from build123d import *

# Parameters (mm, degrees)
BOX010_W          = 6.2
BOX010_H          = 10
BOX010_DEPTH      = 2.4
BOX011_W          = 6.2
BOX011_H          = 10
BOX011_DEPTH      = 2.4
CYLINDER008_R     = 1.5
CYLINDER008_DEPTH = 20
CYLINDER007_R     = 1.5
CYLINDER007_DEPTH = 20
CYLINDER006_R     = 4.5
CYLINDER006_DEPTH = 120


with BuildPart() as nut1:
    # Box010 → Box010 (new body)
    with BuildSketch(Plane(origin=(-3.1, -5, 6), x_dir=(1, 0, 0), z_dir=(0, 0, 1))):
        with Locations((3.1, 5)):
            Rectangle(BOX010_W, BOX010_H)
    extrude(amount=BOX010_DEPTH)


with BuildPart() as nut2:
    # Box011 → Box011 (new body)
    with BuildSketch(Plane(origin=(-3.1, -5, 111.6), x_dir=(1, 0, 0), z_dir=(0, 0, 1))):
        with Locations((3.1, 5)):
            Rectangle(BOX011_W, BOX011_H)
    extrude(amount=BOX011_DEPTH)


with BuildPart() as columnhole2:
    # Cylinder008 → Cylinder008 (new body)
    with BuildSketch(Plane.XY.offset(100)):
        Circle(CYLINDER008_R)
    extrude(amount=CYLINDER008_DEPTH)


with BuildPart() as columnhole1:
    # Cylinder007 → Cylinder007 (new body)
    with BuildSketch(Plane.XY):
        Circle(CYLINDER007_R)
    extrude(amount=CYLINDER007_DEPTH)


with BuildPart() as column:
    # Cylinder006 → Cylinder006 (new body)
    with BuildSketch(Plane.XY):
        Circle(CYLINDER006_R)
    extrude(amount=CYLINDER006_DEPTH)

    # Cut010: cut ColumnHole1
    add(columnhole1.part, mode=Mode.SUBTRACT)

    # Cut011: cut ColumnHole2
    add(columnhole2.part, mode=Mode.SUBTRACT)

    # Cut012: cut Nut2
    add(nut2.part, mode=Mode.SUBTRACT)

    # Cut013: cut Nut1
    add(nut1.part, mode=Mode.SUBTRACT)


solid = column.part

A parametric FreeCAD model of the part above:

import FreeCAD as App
import Part
import Sketcher

V = App.Vector

doc = App.newDocument("Part")
params = doc.addObject("Spreadsheet::Sheet", "Params")
for row, (alias, value) in enumerate([
    ("sketch1_height", "10 mm"),
    ("sketch1_width", "6.2 mm"),
    ("pad1_length", "2.4 mm"),
    ("sketch2_height", "10 mm"),
    ("sketch2_width", "6.2 mm"),
    ("pad2_length", "2.4 mm"),
    ("sketch3_diameter", "3 mm"),
    ("pad3_length", "20 mm"),
    ("sketch4_diameter", "3 mm"),
    ("pad4_length", "20 mm"),
    ("sketch5_diameter", "9 mm"),
    ("pad5_length", "120 mm"),
], start=1):
    params.set(f"A{row}", alias)
    params.set(f"B{row}", "=" + value)
    params.setAlias(f"B{row}", alias)

body = doc.addObject("PartDesign::Body", "Body")

# Sketch on XY plane
sketch1 = doc.addObject("Sketcher::SketchObject", "Sketch")
body.addObject(sketch1)
sketch1.AttachmentSupport = (doc.XY_Plane, [""])
sketch1.MapMode = "FlatFace"
sketch1.AttachmentOffset = App.Placement(V(0, 0, 6), App.Rotation())
sketch1.addGeometry(Part.LineSegment(V(-3.1, 5, 0), V(-3.1, -5, 0)), False)
sketch1.addGeometry(Part.LineSegment(V(-3.1, -5, 0), V(3.1, -5, 0)), False)
sketch1.addGeometry(Part.LineSegment(V(3.1, -5, 0), V(3.1, 5, 0)), False)
sketch1.addGeometry(Part.LineSegment(V(3.1, 5, 0), V(-3.1, 5, 0)), False)
sketch1.addConstraint(Sketcher.Constraint("Coincident", 0, 2, 1, 1))
sketch1.addConstraint(Sketcher.Constraint("Coincident", 1, 2, 2, 1))
sketch1.addConstraint(Sketcher.Constraint("Coincident", 2, 2, 3, 1))
sketch1.addConstraint(Sketcher.Constraint("Coincident", 3, 2, 0, 1))
sketch1.addConstraint(Sketcher.Constraint("Vertical", 0))
sketch1.addConstraint(Sketcher.Constraint("Horizontal", 1))
sketch1.addConstraint(Sketcher.Constraint("Vertical", 2))
sketch1.addConstraint(Sketcher.Constraint("Horizontal", 3))
sketch1.addConstraint(Sketcher.Constraint("Symmetric", 0, 2, 2, 2, -1, 1))
sketch1.addConstraint(Sketcher.Constraint("DistanceY", 0, 2, 0, 1, 10.0))
sketch1.addConstraint(Sketcher.Constraint("DistanceX", 1, 1, 1, 2, 6.2))
sketch1.setExpression("Constraints[9]", "Params.sketch1_height")
sketch1.setExpression("Constraints[10]", "Params.sketch1_width")
pad1 = doc.addObject("PartDesign::Pad", "Pad")
body.addObject(pad1)
pad1.Profile = sketch1
pad1.setExpression("Length", "Params.pad1_length")
body2 = doc.addObject("PartDesign::Body", "Body001")

# Sketch on XY plane
sketch2 = doc.addObject("Sketcher::SketchObject", "Sketch001")
body2.addObject(sketch2)
sketch2.AttachmentSupport = (doc.getObject("XY_Plane001"), [""])
sketch2.MapMode = "FlatFace"
sketch2.AttachmentOffset = App.Placement(V(0, 0, 111.6), App.Rotation())
sketch2.addGeometry(Part.LineSegment(V(-3.1, 5, 0), V(-3.1, -5, 0)), False)
sketch2.addGeometry(Part.LineSegment(V(-3.1, -5, 0), V(3.1, -5, 0)), False)
sketch2.addGeometry(Part.LineSegment(V(3.1, -5, 0), V(3.1, 5, 0)), False)
sketch2.addGeometry(Part.LineSegment(V(3.1, 5, 0), V(-3.1, 5, 0)), False)
sketch2.addConstraint(Sketcher.Constraint("Coincident", 0, 2, 1, 1))
sketch2.addConstraint(Sketcher.Constraint("Coincident", 1, 2, 2, 1))
sketch2.addConstraint(Sketcher.Constraint("Coincident", 2, 2, 3, 1))
sketch2.addConstraint(Sketcher.Constraint("Coincident", 3, 2, 0, 1))
sketch2.addConstraint(Sketcher.Constraint("Vertical", 0))
sketch2.addConstraint(Sketcher.Constraint("Horizontal", 1))
sketch2.addConstraint(Sketcher.Constraint("Vertical", 2))
sketch2.addConstraint(Sketcher.Constraint("Horizontal", 3))
sketch2.addConstraint(Sketcher.Constraint("Symmetric", 0, 2, 2, 2, -1, 1))
sketch2.addConstraint(Sketcher.Constraint("DistanceY", 0, 2, 0, 1, 10.0))
sketch2.addConstraint(Sketcher.Constraint("DistanceX", 1, 1, 1, 2, 6.2))
sketch2.setExpression("Constraints[9]", "Params.sketch2_height")
sketch2.setExpression("Constraints[10]", "Params.sketch2_width")
pad2 = doc.addObject("PartDesign::Pad", "Pad001")
body2.addObject(pad2)
pad2.Profile = sketch2
pad2.setExpression("Length", "Params.pad2_length")
body3 = doc.addObject("PartDesign::Body", "Body002")

# Sketch on XY plane
sketch3 = doc.addObject("Sketcher::SketchObject", "Sketch002")
body3.addObject(sketch3)
sketch3.AttachmentSupport = (doc.getObject("XY_Plane002"), [""])
sketch3.MapMode = "FlatFace"
sketch3.AttachmentOffset = App.Placement(V(0, 0, 100), App.Rotation())
sketch3.addGeometry(Part.Circle(V(0, 0, 0), V(0, 0, 1), 1.5), False)
sketch3.addConstraint(Sketcher.Constraint("Coincident", 0, 3, -1, 1))
sketch3.addConstraint(Sketcher.Constraint("Diameter", 0, 3.0))
sketch3.setExpression("Constraints[1]", "Params.sketch3_diameter")
pad3 = doc.addObject("PartDesign::Pad", "Pad002")
body3.addObject(pad3)
pad3.Profile = sketch3
pad3.setExpression("Length", "Params.pad3_length")
body4 = doc.addObject("PartDesign::Body", "Body003")

# Sketch on XY plane
sketch4 = doc.addObject("Sketcher::SketchObject", "Sketch003")
body4.addObject(sketch4)
sketch4.AttachmentSupport = (doc.getObject("XY_Plane003"), [""])
sketch4.MapMode = "FlatFace"
sketch4.addGeometry(Part.Circle(V(0, 0, 0), V(0, 0, 1), 1.5), False)
sketch4.addConstraint(Sketcher.Constraint("Coincident", 0, 3, -1, 1))
sketch4.addConstraint(Sketcher.Constraint("Diameter", 0, 3.0))
sketch4.setExpression("Constraints[1]", "Params.sketch4_diameter")
pad4 = doc.addObject("PartDesign::Pad", "Pad003")
body4.addObject(pad4)
pad4.Profile = sketch4
pad4.setExpression("Length", "Params.pad4_length")
body5 = doc.addObject("PartDesign::Body", "Body004")

# Sketch on XY plane
sketch5 = doc.addObject("Sketcher::SketchObject", "Sketch004")
body5.addObject(sketch5)
sketch5.AttachmentSupport = (doc.getObject("XY_Plane004"), [""])
sketch5.MapMode = "FlatFace"
sketch5.addGeometry(Part.Circle(V(0, 0, 0), V(0, 0, 1), 4.5), False)
sketch5.addConstraint(Sketcher.Constraint("Coincident", 0, 3, -1, 1))
sketch5.addConstraint(Sketcher.Constraint("Diameter", 0, 9.0))
sketch5.setExpression("Constraints[1]", "Params.sketch5_diameter")
pad5 = doc.addObject("PartDesign::Pad", "Pad004")
body5.addObject(pad5)
pad5.Profile = sketch5
pad5.setExpression("Length", "Params.pad5_length")
doc.recompute()

boolean = doc.addObject("PartDesign::Boolean", "Boolean")
body5.addObject(boolean)
boolean.Type = "Cut"
boolean.addObjects([body4])
doc.recompute()

boolean2 = doc.addObject("PartDesign::Boolean", "Boolean001")
body5.addObject(boolean2)
boolean2.Type = "Cut"
boolean2.addObjects([body3])
doc.recompute()

boolean3 = doc.addObject("PartDesign::Boolean", "Boolean002")
body5.addObject(boolean3)
boolean3.Type = "Cut"
boolean3.addObjects([body2])
doc.recompute()

boolean4 = doc.addObject("PartDesign::Boolean", "Boolean003")
body5.addObject(boolean4)
boolean4.Type = "Cut"
boolean4.addObjects([body])

doc.recompute()
